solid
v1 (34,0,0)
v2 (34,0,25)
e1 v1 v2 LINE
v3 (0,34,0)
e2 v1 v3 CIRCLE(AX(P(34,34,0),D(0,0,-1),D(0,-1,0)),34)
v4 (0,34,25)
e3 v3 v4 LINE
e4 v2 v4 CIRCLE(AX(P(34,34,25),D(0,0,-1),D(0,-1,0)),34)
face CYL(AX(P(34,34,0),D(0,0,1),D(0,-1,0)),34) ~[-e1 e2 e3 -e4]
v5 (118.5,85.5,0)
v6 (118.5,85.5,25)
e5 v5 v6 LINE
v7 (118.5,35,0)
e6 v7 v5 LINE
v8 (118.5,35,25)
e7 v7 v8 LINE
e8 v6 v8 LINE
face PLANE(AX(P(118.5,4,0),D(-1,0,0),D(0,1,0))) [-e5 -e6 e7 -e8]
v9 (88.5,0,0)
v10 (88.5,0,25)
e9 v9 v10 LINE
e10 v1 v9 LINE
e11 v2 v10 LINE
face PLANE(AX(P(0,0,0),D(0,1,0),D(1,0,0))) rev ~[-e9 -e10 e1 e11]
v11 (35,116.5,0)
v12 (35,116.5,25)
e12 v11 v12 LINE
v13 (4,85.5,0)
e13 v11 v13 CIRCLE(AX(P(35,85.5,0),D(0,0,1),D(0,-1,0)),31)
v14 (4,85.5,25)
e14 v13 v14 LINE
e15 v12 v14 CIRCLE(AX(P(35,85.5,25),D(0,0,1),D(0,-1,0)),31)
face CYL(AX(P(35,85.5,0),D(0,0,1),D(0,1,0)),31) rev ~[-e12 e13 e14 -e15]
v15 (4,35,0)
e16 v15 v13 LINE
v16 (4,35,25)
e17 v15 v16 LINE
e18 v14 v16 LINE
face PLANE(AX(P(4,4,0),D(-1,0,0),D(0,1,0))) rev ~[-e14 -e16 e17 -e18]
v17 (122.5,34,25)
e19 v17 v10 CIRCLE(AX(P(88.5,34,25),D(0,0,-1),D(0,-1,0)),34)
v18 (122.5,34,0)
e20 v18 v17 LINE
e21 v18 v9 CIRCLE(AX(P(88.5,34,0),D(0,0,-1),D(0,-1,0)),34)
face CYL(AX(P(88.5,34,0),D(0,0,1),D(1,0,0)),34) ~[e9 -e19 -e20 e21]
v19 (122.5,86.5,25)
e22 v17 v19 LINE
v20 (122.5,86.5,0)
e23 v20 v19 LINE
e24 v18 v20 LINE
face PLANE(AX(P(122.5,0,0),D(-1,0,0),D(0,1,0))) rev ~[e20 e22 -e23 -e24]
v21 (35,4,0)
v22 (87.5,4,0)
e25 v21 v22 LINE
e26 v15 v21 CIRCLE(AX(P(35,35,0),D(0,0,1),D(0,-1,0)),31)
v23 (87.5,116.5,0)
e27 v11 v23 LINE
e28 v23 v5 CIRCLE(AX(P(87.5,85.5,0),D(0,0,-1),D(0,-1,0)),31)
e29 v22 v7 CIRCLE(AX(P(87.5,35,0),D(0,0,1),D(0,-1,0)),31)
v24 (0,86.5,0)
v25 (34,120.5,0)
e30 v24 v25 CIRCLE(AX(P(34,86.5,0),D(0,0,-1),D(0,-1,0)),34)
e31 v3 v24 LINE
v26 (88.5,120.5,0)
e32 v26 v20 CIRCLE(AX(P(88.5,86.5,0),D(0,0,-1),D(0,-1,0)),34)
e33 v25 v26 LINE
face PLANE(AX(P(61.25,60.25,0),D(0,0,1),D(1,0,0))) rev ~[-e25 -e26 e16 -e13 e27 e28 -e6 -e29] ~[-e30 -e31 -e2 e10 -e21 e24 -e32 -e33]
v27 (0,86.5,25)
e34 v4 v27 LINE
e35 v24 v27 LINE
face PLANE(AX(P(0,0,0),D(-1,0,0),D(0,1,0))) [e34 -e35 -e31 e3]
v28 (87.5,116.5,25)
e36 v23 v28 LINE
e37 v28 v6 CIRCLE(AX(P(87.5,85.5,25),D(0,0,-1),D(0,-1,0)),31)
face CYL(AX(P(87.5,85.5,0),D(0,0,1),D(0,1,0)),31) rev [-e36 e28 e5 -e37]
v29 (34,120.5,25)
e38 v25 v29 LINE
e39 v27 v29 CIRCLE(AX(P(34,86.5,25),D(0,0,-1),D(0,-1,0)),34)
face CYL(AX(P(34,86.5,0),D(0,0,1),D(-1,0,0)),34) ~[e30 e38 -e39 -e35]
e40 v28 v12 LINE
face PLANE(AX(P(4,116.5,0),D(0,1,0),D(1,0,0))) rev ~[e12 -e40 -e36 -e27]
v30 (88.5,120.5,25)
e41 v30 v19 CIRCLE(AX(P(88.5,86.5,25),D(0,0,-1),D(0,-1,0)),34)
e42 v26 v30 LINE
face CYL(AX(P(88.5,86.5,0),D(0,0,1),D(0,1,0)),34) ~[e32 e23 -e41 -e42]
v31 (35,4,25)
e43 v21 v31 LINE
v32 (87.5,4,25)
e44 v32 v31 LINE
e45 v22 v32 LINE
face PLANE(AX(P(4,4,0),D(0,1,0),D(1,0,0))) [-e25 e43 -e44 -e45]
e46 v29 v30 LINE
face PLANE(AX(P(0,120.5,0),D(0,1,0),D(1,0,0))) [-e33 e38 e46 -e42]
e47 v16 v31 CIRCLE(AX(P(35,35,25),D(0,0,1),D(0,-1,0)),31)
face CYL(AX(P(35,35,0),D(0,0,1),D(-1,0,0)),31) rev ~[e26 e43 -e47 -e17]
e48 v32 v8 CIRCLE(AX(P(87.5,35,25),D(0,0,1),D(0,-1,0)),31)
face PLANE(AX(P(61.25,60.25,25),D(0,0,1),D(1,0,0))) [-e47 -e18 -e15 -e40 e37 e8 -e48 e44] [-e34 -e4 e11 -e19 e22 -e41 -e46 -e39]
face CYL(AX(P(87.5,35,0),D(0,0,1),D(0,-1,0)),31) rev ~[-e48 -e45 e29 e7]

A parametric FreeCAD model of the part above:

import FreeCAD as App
import Part
import Sketcher
Q = App.Units.Quantity


def edges_at(feature, points):
    """Names of the edges that pass closest to the given points."""
    edges = feature.Shape.Edges
    near = lambda p: min(range(len(edges)), key=lambda i: edges[i].distToShape(Part.Vertex(*p))[0])
    return sorted({f"Edge{near(p) + 1}" for p in points})

doc = App.newDocument("Part")
body = doc.addObject("PartDesign::Body", "Body")

sketch1 = doc.addObject("Sketcher::SketchObject", "Sketch")
body.addObject(sketch1)
sketch1.AttachmentSupport = (doc.XY_Plane, [""])
sketch1.MapMode = "FlatFace"
sketch1.addGeometry(Part.LineSegment(App.Vector(4, 116, 0), App.Vector(4, 4, 0)), False)
sketch1.addGeometry(Part.LineSegment(App.Vector(4, 4, 0), App.Vector(118, 4, 0)), False)
sketch1.addGeometry(Part.LineSegment(App.Vector(118, 4, 0), App.Vector(118, 116, 0)), False)
sketch1.addGeometry(Part.LineSegment(App.Vector(118, 116, 0), App.Vector(4, 116, 0)), False)
sketch1.addConstraint(Sketcher.Constraint("Coincident", 0, 2, 1, 1))
sketch1.addConstraint(Sketcher.Constraint("Coincident", 1, 2, 2, 1))
sketch1.addConstraint(Sketcher.Constraint("Coincident", 2, 2, 3, 1))
sketch1.addConstraint(Sketcher.Constraint("Coincident", 3, 2, 0, 1))
sketch1.addConstraint(Sketcher.Constraint("Vertical", 0))
sketch1.addConstraint(Sketcher.Constraint("Horizontal", 1))
sketch1.addConstraint(Sketcher.Constraint("Vertical", 2))
sketch1.addConstraint(Sketcher.Constraint("Horizontal", 3))
sketch1.addConstraint(Sketcher.Constraint("DistanceX", 1, 1, 1, 2, Q("114.5 mm")))
sketch1.addConstraint(Sketcher.Constraint("DistanceY", 0, 2, 0, 1, Q("112.5 mm")))
sketch1.addConstraint(Sketcher.Constraint("DistanceX", -1, 1, 0, 2, Q("4 mm")))
sketch1.addConstraint(Sketcher.Constraint("DistanceY", -1, 1, 0, 2, Q("4 mm")))
pad1 = doc.addObject("PartDesign::Pad", "Pad")
body.addObject(pad1)
pad1.Profile = sketch1
pad1.Length = 32
body2 = doc.addObject("PartDesign::Body", "Body001")

sketch2 = doc.addObject("Sketcher::SketchObject", "Sketch001")
body2.addObject(sketch2)
sketch2.AttachmentSupport = (doc.getObject("XY_Plane001"), [""])
sketch2.MapMode = "FlatFace"
sketch2.addGeometry(Part.LineSegment(App.Vector(0, 120, 0), App.Vector(0, 0, 0)), False)
sketch2.addGeometry(Part.LineSegment(App.Vector(0, 0, 0), App.Vector(122, 0, 0)), False)
sketch2.addGeometry(Part.LineSegment(App.Vector(122, 0, 0), App.Vector(122, 120, 0)), False)
sketch2.addGeometry(Part.LineSegment(App.Vector(122, 120, 0), App.Vector(0, 120, 0)), False)
sketch2.addConstraint(Sketcher.Constraint("Coincident", 0, 2, 1, 1))
sketch2.addConstraint(Sketcher.Constraint("Coincident", 1, 2, 2, 1))
sketch2.addConstraint(Sketcher.Constraint("Coincident", 2, 2, 3, 1))
sketch2.addConstraint(Sketcher.Constraint("Coincident", 3, 2, 0, 1))
sketch2.addConstraint(Sketcher.Constraint("Vertical", 0))
sketch2.addConstraint(Sketcher.Constraint("Horizontal", 1))
sketch2.addConstraint(Sketcher.Constraint("Vertical", 2))
sketch2.addConstraint(Sketcher.Constraint("Horizontal", 3))
sketch2.addConstraint(Sketcher.Constraint("Coincident", 0, 2, -1, 1))
sketch2.addConstraint(Sketcher.Constraint("DistanceX", 1, 1, 1, 2, Q("122.5 mm")))
sketch2.addConstraint(Sketcher.Constraint("DistanceY", 0, 2, 0, 1, Q("120.5 mm")))
pad2 = doc.addObject("PartDesign::Pad", "Pad001")
body2.addObject(pad2)
pad2.Profile = sketch2
pad2.Length = 25
doc.recompute()

boolean = doc.addObject("PartDesign::Boolean", "Boolean")
body2.addObject(boolean)
boolean.Type = "Cut"
boolean.addObjects([body])
doc.recompute()

fillet = doc.addObject("PartDesign::Fillet", "Fillet")
body2.addObject(fillet)
fillet.Base = (boolean, edges_at(boolean, [(4, 116.5, 12.5)]))
fillet.Radius = 31
doc.recompute()

fillet2 = doc.addObject("PartDesign::Fillet", "Fillet001")
body2.addObject(fillet2)
fillet2.Base = (fillet, edges_at(fillet, [(118.5, 116.5, 12.5)]))
fillet2.Radius = 31
doc.recompute()

fillet3 = doc.addObject("PartDesign::Fillet", "Fillet002")
body2.addObject(fillet3)
fillet3.Base = (fillet2, edges_at(fillet2, [(4, 4, 12.5)]))
fillet3.Radius = 31
doc.recompute()

fillet4 = doc.addObject("PartDesign::Fillet", "Fillet003")
body2.addObject(fillet4)
fillet4.Base = (fillet3, edges_at(fillet3, [(118.5, 4, 12.5)]))
fillet4.Radius = 31
doc.recompute()

fillet5 = doc.addObject("PartDesign::Fillet", "Fillet004")
body2.addObject(fillet5)
fillet5.Base = (fillet4, edges_at(fillet4, [(0, 120.5, 12.5)]))
fillet5.Radius = 34
doc.recompute()

fillet6 = doc.addObject("PartDesign::Fillet", "Fillet005")
body2.addObject(fillet6)
fillet6.Base = (fillet5, edges_at(fillet5, [(122.5, 120.5, 12.5)]))
fillet6.Radius = 34
doc.recompute()

fillet7 = doc.addObject("PartDesign::Fillet", "Fillet006")
body2.addObject(fillet7)
fillet7.Base = (fillet6, edges_at(fillet6, [(122.5, 0, 12.5)]))
fillet7.Radius = 34
doc.recompute()

fillet8 = doc.addObject("PartDesign::Fillet", "Fillet007")
body2.addObject(fillet8)
fillet8.Base = (fillet7, edges_at(fillet7, [(0, 0, 12.5)]))
fillet8.Radius = 34

doc.recompute()
